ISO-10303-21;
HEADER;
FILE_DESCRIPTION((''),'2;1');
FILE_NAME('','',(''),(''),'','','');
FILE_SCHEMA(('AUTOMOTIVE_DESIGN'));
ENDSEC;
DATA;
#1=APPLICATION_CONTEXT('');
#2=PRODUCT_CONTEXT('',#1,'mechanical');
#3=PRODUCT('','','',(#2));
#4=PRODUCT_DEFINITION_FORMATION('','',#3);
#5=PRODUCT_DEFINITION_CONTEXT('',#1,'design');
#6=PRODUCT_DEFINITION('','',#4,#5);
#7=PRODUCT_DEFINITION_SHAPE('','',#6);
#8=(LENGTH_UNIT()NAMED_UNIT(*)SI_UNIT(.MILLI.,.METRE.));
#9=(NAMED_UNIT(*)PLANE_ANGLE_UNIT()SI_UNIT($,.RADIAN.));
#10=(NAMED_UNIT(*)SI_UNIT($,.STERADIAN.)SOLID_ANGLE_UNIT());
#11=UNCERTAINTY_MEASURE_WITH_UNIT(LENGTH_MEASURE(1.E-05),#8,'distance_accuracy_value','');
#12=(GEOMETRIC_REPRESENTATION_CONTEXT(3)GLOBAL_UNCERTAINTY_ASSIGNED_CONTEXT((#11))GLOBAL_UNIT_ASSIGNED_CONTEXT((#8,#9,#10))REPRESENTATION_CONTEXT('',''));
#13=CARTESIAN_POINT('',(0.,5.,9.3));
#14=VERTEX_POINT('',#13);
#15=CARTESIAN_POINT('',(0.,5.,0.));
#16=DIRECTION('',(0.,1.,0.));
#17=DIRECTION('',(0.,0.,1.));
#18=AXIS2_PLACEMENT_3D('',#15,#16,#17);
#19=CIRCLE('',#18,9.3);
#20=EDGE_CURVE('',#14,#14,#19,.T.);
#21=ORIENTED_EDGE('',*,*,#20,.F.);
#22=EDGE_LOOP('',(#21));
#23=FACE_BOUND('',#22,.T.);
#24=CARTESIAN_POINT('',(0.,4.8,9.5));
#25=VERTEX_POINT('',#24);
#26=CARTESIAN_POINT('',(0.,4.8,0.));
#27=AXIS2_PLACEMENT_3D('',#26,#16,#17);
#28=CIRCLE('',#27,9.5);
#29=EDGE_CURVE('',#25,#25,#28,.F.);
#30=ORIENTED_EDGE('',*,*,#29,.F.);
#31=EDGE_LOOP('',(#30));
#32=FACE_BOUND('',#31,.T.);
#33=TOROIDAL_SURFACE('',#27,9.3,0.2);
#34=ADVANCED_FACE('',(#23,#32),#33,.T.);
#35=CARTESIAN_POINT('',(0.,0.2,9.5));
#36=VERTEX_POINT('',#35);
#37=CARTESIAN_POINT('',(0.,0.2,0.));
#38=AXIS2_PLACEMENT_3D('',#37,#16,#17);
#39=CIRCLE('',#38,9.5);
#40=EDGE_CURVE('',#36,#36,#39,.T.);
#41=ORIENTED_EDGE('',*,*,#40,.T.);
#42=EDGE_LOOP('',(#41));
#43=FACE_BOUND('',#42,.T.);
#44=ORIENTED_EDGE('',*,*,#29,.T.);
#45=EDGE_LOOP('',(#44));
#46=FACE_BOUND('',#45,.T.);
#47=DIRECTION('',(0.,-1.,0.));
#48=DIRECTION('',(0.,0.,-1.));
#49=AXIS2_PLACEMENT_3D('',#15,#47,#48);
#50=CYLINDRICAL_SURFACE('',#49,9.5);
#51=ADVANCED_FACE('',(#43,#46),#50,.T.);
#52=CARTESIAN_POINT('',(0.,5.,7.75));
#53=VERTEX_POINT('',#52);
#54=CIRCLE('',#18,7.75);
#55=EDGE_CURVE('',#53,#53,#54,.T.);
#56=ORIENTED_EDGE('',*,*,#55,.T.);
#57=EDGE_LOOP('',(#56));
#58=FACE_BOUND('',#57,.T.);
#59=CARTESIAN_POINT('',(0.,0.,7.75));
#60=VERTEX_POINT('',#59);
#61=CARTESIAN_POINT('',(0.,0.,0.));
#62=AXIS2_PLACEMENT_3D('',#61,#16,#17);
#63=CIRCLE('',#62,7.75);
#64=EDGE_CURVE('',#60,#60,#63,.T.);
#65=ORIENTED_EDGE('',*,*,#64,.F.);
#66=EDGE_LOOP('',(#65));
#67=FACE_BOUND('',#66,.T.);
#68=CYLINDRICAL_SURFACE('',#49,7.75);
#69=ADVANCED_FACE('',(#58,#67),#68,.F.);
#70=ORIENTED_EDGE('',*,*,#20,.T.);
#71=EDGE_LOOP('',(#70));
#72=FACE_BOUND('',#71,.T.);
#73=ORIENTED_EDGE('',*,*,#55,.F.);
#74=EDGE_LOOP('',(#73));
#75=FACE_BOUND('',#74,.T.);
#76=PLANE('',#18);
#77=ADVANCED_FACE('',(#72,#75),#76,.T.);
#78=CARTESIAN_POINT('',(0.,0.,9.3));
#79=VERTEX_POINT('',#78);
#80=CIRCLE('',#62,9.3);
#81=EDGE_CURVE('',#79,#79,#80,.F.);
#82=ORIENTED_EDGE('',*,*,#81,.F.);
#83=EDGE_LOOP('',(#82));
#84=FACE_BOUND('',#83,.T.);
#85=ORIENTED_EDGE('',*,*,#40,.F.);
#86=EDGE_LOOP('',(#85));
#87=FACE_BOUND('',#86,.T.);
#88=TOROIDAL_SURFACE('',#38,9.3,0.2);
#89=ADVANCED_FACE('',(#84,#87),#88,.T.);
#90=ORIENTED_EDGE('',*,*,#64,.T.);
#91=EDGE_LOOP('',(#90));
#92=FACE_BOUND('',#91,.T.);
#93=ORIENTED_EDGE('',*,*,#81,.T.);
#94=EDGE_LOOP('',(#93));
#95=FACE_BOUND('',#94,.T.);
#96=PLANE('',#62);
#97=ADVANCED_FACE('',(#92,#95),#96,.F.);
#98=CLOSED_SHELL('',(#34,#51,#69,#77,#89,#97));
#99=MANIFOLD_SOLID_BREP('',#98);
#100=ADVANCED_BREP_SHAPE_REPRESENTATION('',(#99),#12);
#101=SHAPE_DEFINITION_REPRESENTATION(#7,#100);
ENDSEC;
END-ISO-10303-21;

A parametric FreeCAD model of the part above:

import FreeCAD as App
import Part
import Sketcher
Q = App.Units.Quantity


def edges_at(feature, points):
    """Names of the edges that pass closest to the given points."""
    edges = feature.Shape.Edges
    near = lambda p: min(range(len(edges)), key=lambda i: edges[i].distToShape(Part.Vertex(*p))[0])
    return sorted({f"Edge{near(p) + 1}" for p in points})

doc = App.newDocument("Part")
params = doc.addObject("Spreadsheet::Sheet", "Params")
for row, (alias, value) in enumerate([
    ("sketch1_diameter", "19 mm"),
    ("sketch1_diameter2", "15.5 mm"),
    ("pad1_length", "5 mm"),
    ("fillet_radius", "0.2 mm"),
], start=1):
    params.set(f"A{row}", alias)
    params.set(f"B{row}", "=" + value)
    params.setAlias(f"B{row}", alias)

body = doc.addObject("PartDesign::Body", "Body")

# Sketch on XZ plane
sketch1 = body.newObject("Sketcher::SketchObject", "Sketch")
sketch1.AttachmentSupport = (doc.getObject("XZ_Plane"), [""])
sketch1.MapMode = "FlatFace"
sketch1.addGeometry(Part.Circle(App.Vector(0, 0, 0), App.Vector(0, 0, 1), 10), False)
sketch1.addGeometry(Part.Circle(App.Vector(0, 0, 0), App.Vector(0, 0, 1), 8), False)
sketch1.addConstraint(Sketcher.Constraint("Coincident", 0, 3, -1, 1))
sketch1.addConstraint(Sketcher.Constraint("Coincident", 1, 3, -1, 1))
sketch1.addConstraint(Sketcher.Constraint("Diameter", 0, Q("19 mm")))
sketch1.addConstraint(Sketcher.Constraint("Diameter", 1, Q("15.5 mm")))
sketch1.setExpression("Constraints[2]", "Params.sketch1_diameter")
sketch1.setExpression("Constraints[3]", "Params.sketch1_diameter2")
pad1 = body.newObject("PartDesign::Pad", "Pad")
pad1.Profile = sketch1
pad1.setExpression("Length", "Params.pad1_length")
pad1.Reversed = True
doc.recompute()

fillet = body.newObject("PartDesign::Fillet", "Fillet")
fillet.Base = (pad1, edges_at(pad1, [(-9.5, 0, 0), (-9.5, 5, 0)]))
fillet.setExpression("Radius", "Params.fillet_radius")

doc.recompute()
